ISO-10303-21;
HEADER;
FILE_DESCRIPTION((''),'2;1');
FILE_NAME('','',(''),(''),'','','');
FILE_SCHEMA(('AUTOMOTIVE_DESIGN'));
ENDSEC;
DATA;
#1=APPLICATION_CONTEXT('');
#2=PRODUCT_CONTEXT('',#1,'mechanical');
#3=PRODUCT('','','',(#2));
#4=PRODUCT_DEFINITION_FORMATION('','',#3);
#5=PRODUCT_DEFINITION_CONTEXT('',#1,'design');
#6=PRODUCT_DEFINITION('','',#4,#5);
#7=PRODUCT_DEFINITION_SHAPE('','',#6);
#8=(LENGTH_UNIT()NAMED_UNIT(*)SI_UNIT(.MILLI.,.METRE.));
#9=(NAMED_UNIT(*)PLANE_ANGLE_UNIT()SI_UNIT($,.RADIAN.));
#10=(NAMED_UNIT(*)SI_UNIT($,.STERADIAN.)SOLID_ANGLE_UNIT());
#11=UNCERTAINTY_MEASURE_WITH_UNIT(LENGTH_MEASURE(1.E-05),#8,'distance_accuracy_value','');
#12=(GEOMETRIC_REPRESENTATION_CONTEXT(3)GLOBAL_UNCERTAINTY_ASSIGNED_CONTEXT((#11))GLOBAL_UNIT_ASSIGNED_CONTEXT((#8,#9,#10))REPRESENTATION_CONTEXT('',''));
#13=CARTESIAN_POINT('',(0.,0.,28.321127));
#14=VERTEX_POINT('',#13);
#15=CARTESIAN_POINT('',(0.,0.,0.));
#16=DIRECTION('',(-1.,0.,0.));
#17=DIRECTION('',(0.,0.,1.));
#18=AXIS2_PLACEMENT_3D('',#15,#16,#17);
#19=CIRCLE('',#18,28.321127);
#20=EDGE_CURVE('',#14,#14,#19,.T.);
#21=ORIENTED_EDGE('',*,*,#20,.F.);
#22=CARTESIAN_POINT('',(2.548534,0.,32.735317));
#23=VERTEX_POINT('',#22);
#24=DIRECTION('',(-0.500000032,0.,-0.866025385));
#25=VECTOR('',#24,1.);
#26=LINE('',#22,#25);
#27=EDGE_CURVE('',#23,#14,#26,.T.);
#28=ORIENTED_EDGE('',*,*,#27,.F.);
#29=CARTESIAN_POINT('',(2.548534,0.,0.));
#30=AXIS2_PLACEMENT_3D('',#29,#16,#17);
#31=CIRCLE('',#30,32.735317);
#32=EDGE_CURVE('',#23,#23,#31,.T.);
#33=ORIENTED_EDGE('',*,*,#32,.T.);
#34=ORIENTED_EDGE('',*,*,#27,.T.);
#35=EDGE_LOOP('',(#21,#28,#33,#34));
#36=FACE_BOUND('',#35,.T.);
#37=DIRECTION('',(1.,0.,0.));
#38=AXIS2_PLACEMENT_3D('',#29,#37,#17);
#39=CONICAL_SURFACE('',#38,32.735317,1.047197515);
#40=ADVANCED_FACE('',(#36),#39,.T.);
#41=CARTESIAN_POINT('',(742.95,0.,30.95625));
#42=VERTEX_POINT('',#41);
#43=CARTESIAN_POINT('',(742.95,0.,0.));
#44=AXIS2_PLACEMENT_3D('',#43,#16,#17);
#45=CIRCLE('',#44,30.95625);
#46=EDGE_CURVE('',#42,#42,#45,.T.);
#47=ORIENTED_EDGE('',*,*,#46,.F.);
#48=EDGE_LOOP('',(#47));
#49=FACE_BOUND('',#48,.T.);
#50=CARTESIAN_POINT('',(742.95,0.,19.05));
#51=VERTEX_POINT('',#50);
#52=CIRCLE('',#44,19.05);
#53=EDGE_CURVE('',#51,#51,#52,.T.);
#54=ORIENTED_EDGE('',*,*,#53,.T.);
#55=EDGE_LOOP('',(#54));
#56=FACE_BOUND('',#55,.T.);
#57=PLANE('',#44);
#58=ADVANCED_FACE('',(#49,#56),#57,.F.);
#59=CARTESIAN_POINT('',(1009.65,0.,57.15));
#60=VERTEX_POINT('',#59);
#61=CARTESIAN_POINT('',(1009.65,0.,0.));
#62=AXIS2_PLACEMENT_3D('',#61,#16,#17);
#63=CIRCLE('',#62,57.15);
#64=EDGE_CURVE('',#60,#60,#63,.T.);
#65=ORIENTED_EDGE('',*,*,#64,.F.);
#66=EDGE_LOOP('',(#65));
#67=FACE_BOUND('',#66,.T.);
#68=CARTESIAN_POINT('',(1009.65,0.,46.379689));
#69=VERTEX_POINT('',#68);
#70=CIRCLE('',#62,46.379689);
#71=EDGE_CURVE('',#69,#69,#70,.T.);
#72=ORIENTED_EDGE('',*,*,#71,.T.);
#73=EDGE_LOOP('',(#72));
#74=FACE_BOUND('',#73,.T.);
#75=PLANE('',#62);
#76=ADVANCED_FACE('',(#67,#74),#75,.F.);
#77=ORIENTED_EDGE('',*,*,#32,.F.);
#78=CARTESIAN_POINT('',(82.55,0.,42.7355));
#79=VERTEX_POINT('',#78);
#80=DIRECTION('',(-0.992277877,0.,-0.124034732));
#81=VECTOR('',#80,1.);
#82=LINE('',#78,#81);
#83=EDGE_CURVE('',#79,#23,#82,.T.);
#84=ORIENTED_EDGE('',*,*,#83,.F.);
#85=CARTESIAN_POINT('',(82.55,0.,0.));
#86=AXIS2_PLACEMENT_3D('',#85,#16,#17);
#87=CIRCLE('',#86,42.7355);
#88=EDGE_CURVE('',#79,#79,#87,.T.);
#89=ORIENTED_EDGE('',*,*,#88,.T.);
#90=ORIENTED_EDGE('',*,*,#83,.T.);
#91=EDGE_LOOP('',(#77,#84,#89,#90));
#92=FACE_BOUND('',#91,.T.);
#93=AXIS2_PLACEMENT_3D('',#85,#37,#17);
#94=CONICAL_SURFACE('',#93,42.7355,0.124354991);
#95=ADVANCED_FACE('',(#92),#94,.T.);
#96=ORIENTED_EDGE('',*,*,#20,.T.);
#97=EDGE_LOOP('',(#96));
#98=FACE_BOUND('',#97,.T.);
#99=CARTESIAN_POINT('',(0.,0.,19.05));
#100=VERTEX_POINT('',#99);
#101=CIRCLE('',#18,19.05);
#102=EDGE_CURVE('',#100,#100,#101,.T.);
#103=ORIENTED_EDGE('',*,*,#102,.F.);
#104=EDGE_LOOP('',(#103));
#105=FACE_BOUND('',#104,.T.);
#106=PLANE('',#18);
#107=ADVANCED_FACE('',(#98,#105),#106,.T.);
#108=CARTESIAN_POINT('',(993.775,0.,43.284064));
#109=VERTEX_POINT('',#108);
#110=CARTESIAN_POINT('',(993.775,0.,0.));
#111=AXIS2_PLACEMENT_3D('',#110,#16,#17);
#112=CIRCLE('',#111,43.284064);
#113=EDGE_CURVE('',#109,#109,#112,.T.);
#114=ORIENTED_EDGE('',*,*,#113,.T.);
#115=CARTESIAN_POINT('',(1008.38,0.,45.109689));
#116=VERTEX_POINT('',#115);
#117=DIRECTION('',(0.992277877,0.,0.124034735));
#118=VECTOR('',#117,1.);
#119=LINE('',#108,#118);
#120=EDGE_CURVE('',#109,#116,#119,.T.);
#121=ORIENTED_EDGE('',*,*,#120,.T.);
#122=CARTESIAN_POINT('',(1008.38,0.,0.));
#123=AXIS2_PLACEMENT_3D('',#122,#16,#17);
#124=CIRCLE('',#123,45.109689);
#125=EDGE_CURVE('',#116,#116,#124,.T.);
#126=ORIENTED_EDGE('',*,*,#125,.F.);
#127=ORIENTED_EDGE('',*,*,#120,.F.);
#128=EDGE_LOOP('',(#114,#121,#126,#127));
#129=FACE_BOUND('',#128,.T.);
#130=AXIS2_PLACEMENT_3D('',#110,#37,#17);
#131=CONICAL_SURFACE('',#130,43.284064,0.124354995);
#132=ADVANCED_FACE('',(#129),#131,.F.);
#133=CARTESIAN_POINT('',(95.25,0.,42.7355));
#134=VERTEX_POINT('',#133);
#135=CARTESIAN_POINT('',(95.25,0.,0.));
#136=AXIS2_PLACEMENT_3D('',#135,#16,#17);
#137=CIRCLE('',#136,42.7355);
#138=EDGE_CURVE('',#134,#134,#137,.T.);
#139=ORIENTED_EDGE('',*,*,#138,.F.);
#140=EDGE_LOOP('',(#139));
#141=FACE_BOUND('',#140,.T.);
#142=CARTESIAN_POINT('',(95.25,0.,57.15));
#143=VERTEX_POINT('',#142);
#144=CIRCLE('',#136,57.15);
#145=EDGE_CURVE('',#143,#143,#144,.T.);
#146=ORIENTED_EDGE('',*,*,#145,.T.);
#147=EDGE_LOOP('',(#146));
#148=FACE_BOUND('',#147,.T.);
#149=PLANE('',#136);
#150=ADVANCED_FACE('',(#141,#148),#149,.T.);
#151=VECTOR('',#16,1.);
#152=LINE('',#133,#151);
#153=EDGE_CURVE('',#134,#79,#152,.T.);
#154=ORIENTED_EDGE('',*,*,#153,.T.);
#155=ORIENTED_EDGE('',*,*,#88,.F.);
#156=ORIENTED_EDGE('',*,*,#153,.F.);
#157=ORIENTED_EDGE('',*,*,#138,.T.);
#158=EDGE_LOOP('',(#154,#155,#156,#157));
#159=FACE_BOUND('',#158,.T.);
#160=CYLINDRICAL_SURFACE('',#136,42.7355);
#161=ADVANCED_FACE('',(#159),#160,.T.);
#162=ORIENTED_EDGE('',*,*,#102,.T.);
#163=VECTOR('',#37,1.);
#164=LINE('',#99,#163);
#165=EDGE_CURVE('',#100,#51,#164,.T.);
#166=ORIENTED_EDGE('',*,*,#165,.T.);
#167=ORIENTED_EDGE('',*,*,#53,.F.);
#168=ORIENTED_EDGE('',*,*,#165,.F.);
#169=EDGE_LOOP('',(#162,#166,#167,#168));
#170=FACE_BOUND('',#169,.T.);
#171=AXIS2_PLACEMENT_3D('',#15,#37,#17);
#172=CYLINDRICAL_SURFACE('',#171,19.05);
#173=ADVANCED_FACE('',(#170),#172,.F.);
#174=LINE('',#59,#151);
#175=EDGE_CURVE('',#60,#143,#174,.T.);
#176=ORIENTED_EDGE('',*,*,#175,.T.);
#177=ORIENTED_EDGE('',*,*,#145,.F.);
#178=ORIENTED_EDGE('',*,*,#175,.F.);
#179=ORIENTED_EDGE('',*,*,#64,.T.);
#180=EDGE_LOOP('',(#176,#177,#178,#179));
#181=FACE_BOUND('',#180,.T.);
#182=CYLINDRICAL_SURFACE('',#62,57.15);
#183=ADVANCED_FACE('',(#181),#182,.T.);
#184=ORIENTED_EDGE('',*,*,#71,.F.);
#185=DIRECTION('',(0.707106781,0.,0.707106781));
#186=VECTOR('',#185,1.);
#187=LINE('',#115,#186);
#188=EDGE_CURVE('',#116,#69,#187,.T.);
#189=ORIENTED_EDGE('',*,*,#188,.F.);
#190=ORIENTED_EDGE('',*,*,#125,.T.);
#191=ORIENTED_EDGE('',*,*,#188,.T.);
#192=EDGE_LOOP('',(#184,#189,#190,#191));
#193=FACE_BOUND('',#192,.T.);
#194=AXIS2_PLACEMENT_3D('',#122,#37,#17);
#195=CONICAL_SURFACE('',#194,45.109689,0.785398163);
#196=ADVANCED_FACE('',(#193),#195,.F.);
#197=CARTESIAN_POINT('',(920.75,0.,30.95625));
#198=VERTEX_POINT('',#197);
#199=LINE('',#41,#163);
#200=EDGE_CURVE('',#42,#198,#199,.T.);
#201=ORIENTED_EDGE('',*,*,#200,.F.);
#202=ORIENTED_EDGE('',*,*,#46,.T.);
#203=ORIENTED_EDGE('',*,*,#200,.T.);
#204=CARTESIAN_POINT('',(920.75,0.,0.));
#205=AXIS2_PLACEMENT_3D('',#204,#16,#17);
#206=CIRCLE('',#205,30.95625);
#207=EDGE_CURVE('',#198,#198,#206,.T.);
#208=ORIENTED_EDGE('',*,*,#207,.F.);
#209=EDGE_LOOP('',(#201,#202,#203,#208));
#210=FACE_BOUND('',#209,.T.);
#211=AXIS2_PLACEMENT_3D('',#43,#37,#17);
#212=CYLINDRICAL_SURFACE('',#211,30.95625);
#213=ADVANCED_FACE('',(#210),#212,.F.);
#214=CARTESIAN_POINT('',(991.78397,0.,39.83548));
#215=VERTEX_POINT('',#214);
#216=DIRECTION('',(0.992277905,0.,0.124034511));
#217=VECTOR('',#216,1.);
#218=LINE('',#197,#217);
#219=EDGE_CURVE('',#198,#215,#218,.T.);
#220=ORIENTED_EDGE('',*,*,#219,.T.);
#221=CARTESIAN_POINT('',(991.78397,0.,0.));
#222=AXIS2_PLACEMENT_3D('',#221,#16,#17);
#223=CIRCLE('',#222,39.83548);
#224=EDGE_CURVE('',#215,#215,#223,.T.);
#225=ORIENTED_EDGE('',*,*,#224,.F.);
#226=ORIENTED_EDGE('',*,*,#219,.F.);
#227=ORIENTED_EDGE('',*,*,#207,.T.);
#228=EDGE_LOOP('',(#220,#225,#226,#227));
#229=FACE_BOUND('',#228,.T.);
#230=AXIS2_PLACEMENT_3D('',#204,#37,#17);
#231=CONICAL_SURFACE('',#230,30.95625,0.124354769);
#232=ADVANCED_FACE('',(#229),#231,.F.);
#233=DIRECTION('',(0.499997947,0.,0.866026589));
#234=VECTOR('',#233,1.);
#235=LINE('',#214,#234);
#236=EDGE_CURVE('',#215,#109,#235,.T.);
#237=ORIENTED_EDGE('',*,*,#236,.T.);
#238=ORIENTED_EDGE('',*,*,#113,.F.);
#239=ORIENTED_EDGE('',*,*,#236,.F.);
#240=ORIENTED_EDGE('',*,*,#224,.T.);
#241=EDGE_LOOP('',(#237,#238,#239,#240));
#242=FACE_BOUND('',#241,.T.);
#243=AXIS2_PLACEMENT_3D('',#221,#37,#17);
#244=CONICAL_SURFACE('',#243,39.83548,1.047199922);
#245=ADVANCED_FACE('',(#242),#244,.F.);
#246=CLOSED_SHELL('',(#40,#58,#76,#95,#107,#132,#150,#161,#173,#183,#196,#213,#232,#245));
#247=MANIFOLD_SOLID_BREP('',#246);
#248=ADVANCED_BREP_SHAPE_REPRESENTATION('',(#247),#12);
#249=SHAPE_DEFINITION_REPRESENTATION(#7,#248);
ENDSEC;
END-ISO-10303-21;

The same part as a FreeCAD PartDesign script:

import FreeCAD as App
import Part
import Sketcher
from FreeCAD import Vector
Q = App.Units.Quantity

doc = App.newDocument("Part")
body = doc.addObject("PartDesign::Body", "Body")

sketch1 = body.newObject("Sketcher::SketchObject", "Sketch")
sketch1.AttachmentSupport = (doc.getObject("XZ_Plane"), [""])
sketch1.MapMode = "FlatFace"
sketch1.addGeometry([
    Part.LineSegment(Vector(1008.4, 45.1, 0), Vector(1009.6, 46.4, 0)),
    Part.LineSegment(Vector(1009.6, 46.4, 0), Vector(1009.6, 57.1, 0)),
    Part.LineSegment(Vector(1009.6, 57.1, 0), Vector(95.2, 57.1, 0)),
    Part.LineSegment(Vector(95.2, 57.1, 0), Vector(95.2, 42.7, 0)),
    Part.LineSegment(Vector(95.2, 42.7, 0), Vector(82.5, 42.7, 0)),
    Part.LineSegment(Vector(82.5, 42.7, 0), Vector(2.5, 32.7, 0)),
    Part.LineSegment(Vector(2.5, 32.7, 0), Vector(0, 28.3, 0)),
    Part.LineSegment(Vector(0, 28.3, 0), Vector(0, 19.1, 0)),
    Part.LineSegment(Vector(0, 19.1, 0), Vector(743, 19.1, 0)),
    Part.LineSegment(Vector(743, 19.1, 0), Vector(743, 31, 0)),
    Part.LineSegment(Vector(743, 31, 0), Vector(920.8, 31, 0)),
    Part.LineSegment(Vector(920.8, 31, 0), Vector(991.8, 39.8, 0)),
    Part.LineSegment(Vector(991.8, 39.8, 0), Vector(993.8, 43.3, 0)),
    Part.LineSegment(Vector(993.8, 43.3, 0), Vector(1008.4, 45.1, 0)),
], False)
sketch1.addConstraint([
    Sketcher.Constraint("Coincident", 0, 2, 1, 1),
    Sketcher.Constraint("Coincident", 1, 2, 2, 1),
    Sketcher.Constraint("Coincident", 2, 2, 3, 1),
    Sketcher.Constraint("Coincident", 3, 2, 4, 1),
    Sketcher.Constraint("Coincident", 4, 2, 5, 1),
    Sketcher.Constraint("Coincident", 5, 2, 6, 1),
    Sketcher.Constraint("Coincident", 6, 2, 7, 1),
    Sketcher.Constraint("Coincident", 7, 2, 8, 1),
    Sketcher.Constraint("Coincident", 8, 2, 9, 1),
    Sketcher.Constraint("Coincident", 9, 2, 10, 1),
    Sketcher.Constraint("Coincident", 10, 2, 11, 1),
    Sketcher.Constraint("Coincident", 11, 2, 12, 1),
    Sketcher.Constraint("Coincident", 12, 2, 13, 1),
    Sketcher.Constraint("Coincident", 13, 2, 0, 1),
    Sketcher.Constraint("Vertical", 1),
    Sketcher.Constraint("Horizontal", 2),
    Sketcher.Constraint("Vertical", 3),
    Sketcher.Constraint("Horizontal", 4),
    Sketcher.Constraint("Vertical", 7),
    Sketcher.Constraint("Horizontal", 8),
    Sketcher.Constraint("Vertical", 9),
    Sketcher.Constraint("Horizontal", 10),
    Sketcher.Constraint("PointOnObject", 6, 2, -2),
    Sketcher.Constraint("Parallel", 5, 11),
    Sketcher.Constraint("Parallel", 11, 13),
    Sketcher.Constraint("DistanceX", 2, 2, 2, 1, Q("36 in")),
    Sketcher.Constraint("DistanceX", 10, 1, 10, 2, Q("7 in")),
    Sketcher.Constraint("DistanceX", 4, 2, 4, 1, Q("0.5 in")),
    Sketcher.Constraint("Angle", 0, Q("45 deg")),
    Sketcher.Constraint("Angle", 6, Q("-120.000002 deg")),
    Sketcher.Constraint("DistanceX", 4, 2, 8, 2, Q("26 in")),
    Sketcher.Constraint("DistanceX", 8, 1, 8, 2, Q("29.25 in")),
    Sketcher.Constraint("DistanceX", -1, 1, 13, 2, Q("39.7 in")),
    Sketcher.Constraint("DistanceY", 7, 2, 2, 2, Q("1.5 in")),
    Sketcher.Constraint("DistanceY", 9, 1, 9, 2, Q("0.46875 in")),
    Sketcher.Constraint("DistanceY", -1, 1, 1, 2, Q("2.25 in")),
    Sketcher.Constraint("DistanceY", 3, 2, 3, 1, Q("0.5675 in")),
    Sketcher.Constraint("DistanceX", -1, 1, 12, 2, Q("39.125 in")),
    Sketcher.Constraint("DistanceY", 1, 1, 1, 2, Q("10.770311 mm")),
    Sketcher.Constraint("Distance", 11, Q("71.58677 mm")),
    Sketcher.Constraint("Distance", 13, Q("14.718659 mm")),
    Sketcher.Constraint("DistanceY", 7, 2, 7, 1, Q("9.271127 mm")),
])
revolution = body.newObject("PartDesign::Revolution", "Revolution")
revolution.Profile = sketch1
revolution.ReferenceAxis = (sketch1, ["H_Axis"])
revolution.Angle = 360

doc.recompute()
